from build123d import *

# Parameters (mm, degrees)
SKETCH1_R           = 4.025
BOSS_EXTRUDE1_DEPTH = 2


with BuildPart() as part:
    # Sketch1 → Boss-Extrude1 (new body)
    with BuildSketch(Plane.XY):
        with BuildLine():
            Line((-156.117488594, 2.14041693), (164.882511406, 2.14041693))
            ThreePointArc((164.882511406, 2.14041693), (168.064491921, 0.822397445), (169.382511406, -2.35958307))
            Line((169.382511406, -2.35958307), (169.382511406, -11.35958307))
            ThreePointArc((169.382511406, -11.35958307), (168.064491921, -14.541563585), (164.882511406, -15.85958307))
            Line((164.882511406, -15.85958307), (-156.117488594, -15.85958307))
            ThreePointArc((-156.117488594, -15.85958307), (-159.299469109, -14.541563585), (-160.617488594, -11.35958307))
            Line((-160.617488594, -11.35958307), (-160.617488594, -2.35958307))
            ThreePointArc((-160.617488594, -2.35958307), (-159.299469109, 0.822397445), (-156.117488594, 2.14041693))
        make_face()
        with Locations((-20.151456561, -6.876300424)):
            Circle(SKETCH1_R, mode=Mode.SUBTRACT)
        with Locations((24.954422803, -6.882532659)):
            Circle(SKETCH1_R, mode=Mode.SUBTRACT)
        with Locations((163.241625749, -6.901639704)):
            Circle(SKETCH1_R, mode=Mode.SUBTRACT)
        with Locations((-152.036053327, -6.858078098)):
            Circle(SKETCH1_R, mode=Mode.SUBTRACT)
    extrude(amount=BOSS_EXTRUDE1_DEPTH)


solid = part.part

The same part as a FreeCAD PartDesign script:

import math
import FreeCAD as App
import Part
import Sketcher
from FreeCAD import Vector

doc = App.newDocument("Part")
params = doc.addObject("Spreadsheet::Sheet", "Params")
for row, (alias, value) in enumerate([
    ("sketch1_radius", "4.5 mm"),
    ("sketch1_diameter", "8.05 mm"),
    ("sketch1_width", "321 mm"),
    ("sketch1_height", "9 mm"),
    ("pad1_length", "2 mm"),
], start=1):
    params.set(f"A{row}", alias)
    params.set(f"B{row}", "=" + value)
    params.setAlias(f"B{row}", alias)

body = doc.addObject("PartDesign::Body", "Body")

sketch1 = doc.addObject("Sketcher::SketchObject", "Sketch")
body.addObject(sketch1)
sketch1.AttachmentSupport = (doc.XY_Plane, [""])
sketch1.MapMode = "FlatFace"
sketch1.addGeometry(Part.LineSegment(Vector(164.9, 2.1, 0), Vector(-156.1, 2.1, 0)), False)
sketch1.addGeometry(Part.ArcOfCircle(Part.Circle(Vector(-156.1, -2.4, 0), Vector(0, 0, 1), 4.5), math.radians(90), math.radians(180)), False)
sketch1.addGeometry(Part.LineSegment(Vector(-160.6, -2.4, 0), Vector(-160.6, -11.4, 0)), False)
sketch1.addGeometry(Part.ArcOfCircle(Part.Circle(Vector(-156.1, -11.4, 0), Vector(0, 0, 1), 4.5), math.radians(-180), math.radians(-90)), False)
sketch1.addGeometry(Part.LineSegment(Vector(-156.1, -15.9, 0), Vector(164.9, -15.9, 0)), False)
sketch1.addGeometry(Part.ArcOfCircle(Part.Circle(Vector(164.9, -11.4, 0), Vector(0, 0, 1), 4.5), math.radians(-90), math.radians(0)), False)
sketch1.addGeometry(Part.LineSegment(Vector(169.4, -11.4, 0), Vector(169.4, -2.4, 0)), False)
sketch1.addGeometry(Part.ArcOfCircle(Part.Circle(Vector(164.9, -2.4, 0), Vector(0, 0, 1), 4.5), math.radians(0), math.radians(90)), False)
sketch1.addGeometry(Part.Circle(Vector(163.2, -6.9, 0), Vector(0, 0, 1), 4), False)
sketch1.addGeometry(Part.Circle(Vector(25, -6.9, 0), Vector(0, 0, 1), 4), False)
sketch1.addGeometry(Part.Circle(Vector(-20.2, -6.9, 0), Vector(0, 0, 1), 4), False)
sketch1.addGeometry(Part.Circle(Vector(-152, -6.9, 0), Vector(0, 0, 1), 4), False)
sketch1.addConstraint(Sketcher.Constraint("Tangent", 0, 2, 1, 1))
sketch1.addConstraint(Sketcher.Constraint("Tangent", 1, 2, 2, 1))
sketch1.addConstraint(Sketcher.Constraint("Tangent", 2, 2, 3, 1))
sketch1.addConstraint(Sketcher.Constraint("Tangent", 3, 2, 4, 1))
sketch1.addConstraint(Sketcher.Constraint("Tangent", 4, 2, 5, 1))
sketch1.addConstraint(Sketcher.Constraint("Tangent", 5, 2, 6, 1))
sketch1.addConstraint(Sketcher.Constraint("Tangent", 6, 2, 7, 1))
sketch1.addConstraint(Sketcher.Constraint("Tangent", 7, 2, 0, 1))
sketch1.addConstraint(Sketcher.Constraint("Horizontal", 0))
sketch1.addConstraint(Sketcher.Constraint("Vertical", 2))
sketch1.addConstraint(Sketcher.Constraint("Horizontal", 4))
sketch1.addConstraint(Sketcher.Constraint("Vertical", 6))
sketch1.addConstraint(Sketcher.Constraint("Equal", 1, 3))
sketch1.addConstraint(Sketcher.Constraint("Equal", 3, 5))
sketch1.addConstraint(Sketcher.Constraint("Equal", 5, 7))
sketch1.addConstraint(Sketcher.Constraint("Equal", 8, 9))
sketch1.addConstraint(Sketcher.Constraint("Equal", 9, 10))
sketch1.addConstraint(Sketcher.Constraint("Equal", 10, 11))
sketch1.addConstraint(Sketcher.Constraint("Radius", 1, 4.5))
sketch1.addConstraint(Sketcher.Constraint("Diameter", 8, 8.05))
sketch1.addConstraint(Sketcher.Constraint("DistanceX", 0, 2, 0, 1, 321.0))
sketch1.addConstraint(Sketcher.Constraint("DistanceY", 2, 2, 2, 1, 9.0))
sketch1.addConstraint(Sketcher.Constraint("DistanceY", 10, 3, -1, 1, 6.8763))
sketch1.addConstraint(Sketcher.Constraint("DistanceX", 1, 3, -1, 1, 156.117489))
sketch1.addConstraint(Sketcher.Constraint("DistanceY", 8, 3, -1, 1, 6.90164))
sketch1.addConstraint(Sketcher.Constraint("DistanceY", 11, 3, -1, 1, 6.858078))
sketch1.addConstraint(Sketcher.Constraint("DistanceX", 9, 3, 5, 3, 139.928089))
sketch1.addConstraint(Sketcher.Constraint("DistanceY", 5, 3, 9, 3, 4.47705))
sketch1.addConstraint(Sketcher.Constraint("DistanceX", 10, 3, 9, 3, 45.105879))
sketch1.addConstraint(Sketcher.Constraint("DistanceX", 11, 3, 8, 3, 315.277679))
sketch1.addConstraint(Sketcher.Constraint("DistanceY", 1, 3, -1, 1, 2.359583))
sketch1.addConstraint(Sketcher.Constraint("DistanceX", -1, 1, 8, 3, 163.241626))
sketch1.setExpression("Constraints[18]", "Params.sketch1_radius")
sketch1.setExpression("Constraints[19]", "Params.sketch1_diameter")
sketch1.setExpression("Constraints[20]", "Params.sketch1_width")
sketch1.setExpression("Constraints[21]", "Params.sketch1_height")
pad1 = doc.addObject("PartDesign::Pad", "Pad")
body.addObject(pad1)
pad1.Profile = sketch1
pad1.setExpression("Length", "Params.pad1_length")

doc.recompute()
